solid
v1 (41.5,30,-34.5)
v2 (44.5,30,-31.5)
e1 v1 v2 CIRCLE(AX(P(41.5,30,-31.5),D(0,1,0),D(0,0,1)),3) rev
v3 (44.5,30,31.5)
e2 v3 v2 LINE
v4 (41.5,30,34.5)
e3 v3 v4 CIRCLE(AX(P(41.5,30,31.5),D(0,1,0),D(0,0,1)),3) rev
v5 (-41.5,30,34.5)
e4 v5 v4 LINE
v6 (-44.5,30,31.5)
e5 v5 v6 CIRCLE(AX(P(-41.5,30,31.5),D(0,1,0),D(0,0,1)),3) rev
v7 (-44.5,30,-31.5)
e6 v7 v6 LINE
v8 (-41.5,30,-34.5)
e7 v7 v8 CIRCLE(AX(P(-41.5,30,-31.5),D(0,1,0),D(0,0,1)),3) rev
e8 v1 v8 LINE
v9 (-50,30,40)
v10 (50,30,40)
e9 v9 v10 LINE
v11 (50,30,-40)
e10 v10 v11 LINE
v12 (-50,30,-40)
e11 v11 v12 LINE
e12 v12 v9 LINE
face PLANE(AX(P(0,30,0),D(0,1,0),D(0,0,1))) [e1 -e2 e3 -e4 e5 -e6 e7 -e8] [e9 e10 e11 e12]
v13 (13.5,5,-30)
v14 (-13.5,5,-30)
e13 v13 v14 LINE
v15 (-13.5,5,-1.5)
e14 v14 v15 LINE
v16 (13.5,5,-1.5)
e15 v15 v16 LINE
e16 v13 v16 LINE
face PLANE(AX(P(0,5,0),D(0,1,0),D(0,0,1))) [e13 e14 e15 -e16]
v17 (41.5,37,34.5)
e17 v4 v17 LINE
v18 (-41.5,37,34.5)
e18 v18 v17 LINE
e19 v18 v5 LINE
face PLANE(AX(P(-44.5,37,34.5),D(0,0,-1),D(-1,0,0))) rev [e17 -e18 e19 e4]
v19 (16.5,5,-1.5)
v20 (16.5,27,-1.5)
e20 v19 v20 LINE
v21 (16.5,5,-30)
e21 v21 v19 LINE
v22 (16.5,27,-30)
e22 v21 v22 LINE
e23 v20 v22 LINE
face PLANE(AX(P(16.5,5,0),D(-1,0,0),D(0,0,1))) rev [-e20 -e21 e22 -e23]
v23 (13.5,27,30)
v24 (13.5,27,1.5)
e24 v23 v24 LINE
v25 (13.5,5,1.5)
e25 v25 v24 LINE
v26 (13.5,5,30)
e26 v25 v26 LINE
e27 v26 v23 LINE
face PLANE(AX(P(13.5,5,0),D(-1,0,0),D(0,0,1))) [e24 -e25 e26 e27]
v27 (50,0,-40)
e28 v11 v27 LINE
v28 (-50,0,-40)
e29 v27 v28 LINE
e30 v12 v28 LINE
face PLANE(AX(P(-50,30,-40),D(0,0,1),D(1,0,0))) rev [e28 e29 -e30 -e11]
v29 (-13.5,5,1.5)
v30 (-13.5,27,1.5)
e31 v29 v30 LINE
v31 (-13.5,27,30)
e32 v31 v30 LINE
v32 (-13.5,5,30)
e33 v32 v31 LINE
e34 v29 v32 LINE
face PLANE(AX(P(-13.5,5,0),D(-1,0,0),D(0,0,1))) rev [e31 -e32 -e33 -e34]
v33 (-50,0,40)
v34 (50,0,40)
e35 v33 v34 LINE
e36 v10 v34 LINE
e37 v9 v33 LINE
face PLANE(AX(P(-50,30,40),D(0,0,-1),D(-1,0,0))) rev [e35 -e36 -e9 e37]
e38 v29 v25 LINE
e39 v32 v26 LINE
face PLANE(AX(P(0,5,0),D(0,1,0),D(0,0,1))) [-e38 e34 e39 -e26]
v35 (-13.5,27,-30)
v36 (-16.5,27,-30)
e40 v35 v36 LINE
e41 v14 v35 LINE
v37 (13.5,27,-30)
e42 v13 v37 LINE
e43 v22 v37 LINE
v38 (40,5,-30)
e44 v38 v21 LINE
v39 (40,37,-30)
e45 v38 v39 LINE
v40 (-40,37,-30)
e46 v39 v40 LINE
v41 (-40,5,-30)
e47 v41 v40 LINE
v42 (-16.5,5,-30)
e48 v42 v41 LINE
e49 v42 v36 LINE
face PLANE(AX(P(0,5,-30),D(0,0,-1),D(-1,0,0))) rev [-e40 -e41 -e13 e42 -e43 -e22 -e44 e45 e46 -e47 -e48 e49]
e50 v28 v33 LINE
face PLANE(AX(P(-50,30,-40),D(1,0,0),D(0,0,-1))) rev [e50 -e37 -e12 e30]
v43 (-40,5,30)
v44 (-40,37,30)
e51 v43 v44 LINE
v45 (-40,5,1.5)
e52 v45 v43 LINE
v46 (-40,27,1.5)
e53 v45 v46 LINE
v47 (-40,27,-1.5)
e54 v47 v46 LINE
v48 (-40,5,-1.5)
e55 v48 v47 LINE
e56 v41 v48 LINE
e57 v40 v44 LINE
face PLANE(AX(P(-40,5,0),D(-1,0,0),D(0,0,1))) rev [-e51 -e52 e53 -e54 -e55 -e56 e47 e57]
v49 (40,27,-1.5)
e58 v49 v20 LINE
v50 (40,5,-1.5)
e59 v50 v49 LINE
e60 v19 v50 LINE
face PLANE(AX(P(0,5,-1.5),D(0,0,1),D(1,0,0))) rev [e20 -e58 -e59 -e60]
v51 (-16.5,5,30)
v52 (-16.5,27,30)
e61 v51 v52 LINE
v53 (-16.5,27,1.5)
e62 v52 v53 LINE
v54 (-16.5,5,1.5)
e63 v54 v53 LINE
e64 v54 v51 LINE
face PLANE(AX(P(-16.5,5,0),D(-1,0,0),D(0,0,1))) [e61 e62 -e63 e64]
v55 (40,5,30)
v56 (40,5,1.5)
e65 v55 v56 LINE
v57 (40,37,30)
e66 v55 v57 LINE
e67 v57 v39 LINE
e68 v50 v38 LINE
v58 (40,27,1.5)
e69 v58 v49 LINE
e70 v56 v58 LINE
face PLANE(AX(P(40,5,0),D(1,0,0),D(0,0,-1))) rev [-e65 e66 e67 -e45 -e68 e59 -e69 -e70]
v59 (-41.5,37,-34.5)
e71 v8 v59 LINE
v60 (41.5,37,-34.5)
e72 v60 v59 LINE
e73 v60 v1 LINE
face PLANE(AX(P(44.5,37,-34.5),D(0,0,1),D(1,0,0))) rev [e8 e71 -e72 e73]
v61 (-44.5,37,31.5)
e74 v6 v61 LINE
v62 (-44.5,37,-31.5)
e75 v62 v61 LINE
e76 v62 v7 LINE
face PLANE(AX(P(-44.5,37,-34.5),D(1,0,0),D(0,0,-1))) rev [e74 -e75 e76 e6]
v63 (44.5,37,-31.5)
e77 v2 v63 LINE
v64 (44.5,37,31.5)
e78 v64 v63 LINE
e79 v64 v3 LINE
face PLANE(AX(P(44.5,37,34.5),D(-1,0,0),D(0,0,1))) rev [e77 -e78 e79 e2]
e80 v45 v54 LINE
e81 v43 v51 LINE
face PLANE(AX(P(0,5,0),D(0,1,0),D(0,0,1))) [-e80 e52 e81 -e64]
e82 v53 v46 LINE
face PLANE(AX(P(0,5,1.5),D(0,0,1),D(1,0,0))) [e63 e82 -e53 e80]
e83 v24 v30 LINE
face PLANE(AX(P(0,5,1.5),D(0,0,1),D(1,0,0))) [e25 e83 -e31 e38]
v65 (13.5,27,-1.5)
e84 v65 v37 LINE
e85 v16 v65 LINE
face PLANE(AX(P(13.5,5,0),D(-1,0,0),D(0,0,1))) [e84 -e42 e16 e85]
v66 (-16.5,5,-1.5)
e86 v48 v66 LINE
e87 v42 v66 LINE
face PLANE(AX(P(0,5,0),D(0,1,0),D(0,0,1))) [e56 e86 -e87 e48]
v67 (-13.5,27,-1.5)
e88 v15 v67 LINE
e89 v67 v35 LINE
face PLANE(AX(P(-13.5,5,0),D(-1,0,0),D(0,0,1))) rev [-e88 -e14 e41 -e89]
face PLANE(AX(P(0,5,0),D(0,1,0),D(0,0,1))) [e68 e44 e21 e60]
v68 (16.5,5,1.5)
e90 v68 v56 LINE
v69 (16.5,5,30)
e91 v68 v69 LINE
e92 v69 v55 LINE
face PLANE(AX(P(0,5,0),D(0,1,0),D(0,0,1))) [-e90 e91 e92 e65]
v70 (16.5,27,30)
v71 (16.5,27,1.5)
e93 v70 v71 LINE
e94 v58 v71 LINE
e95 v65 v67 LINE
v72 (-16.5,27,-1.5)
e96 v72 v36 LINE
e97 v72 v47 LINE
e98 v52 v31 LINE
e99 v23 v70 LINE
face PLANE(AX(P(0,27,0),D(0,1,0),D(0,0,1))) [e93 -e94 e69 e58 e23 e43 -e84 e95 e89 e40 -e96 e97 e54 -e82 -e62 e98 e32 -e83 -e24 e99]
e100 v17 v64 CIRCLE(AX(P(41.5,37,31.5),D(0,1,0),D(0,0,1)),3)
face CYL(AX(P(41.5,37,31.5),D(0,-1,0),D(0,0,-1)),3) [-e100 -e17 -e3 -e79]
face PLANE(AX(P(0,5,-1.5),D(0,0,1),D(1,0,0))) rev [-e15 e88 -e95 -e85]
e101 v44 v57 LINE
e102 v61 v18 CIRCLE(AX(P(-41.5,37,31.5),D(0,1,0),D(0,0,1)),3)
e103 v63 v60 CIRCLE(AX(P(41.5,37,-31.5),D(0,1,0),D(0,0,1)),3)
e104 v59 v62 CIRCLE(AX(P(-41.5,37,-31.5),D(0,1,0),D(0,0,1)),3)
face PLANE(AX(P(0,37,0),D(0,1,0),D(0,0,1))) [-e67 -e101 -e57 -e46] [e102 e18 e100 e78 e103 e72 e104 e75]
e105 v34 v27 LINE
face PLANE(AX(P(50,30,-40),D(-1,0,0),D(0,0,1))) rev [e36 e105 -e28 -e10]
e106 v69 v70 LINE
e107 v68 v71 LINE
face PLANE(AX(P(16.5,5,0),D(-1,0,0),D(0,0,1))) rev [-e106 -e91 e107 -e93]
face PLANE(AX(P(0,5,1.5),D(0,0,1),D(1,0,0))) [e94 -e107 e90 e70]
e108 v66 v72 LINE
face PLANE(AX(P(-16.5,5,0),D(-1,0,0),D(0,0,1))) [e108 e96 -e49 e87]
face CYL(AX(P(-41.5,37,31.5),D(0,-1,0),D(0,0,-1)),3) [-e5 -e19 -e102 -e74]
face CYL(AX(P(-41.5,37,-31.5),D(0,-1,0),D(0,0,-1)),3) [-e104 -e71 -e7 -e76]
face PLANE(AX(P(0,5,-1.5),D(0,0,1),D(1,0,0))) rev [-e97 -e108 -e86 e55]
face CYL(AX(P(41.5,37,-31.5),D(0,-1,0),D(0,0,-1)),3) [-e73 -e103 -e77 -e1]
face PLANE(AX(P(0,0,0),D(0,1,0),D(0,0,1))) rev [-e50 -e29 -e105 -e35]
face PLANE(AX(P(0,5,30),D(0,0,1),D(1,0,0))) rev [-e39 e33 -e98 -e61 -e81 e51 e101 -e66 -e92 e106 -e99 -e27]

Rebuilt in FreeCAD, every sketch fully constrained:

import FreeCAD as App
import Part
import Sketcher
from FreeCAD import Vector


def edges_at(feature, points):
    """Names of the edges that pass closest to the given points."""
    edges = feature.Shape.Edges
    near = lambda p: min(range(len(edges)), key=lambda i: edges[i].distToShape(Part.Vertex(*p))[0])
    return sorted({f"Edge{near(p) + 1}" for p in points})


def add_polygon(sketch, points):
    """Adds a closed chain of lines whose ends are joined by coincident constraints."""
    first, n = sketch.GeometryCount, len(points)
    for a, b in zip(points, points[1:] + points[:1]):
        sketch.addGeometry(Part.LineSegment(App.Vector(*a, 0), App.Vector(*b, 0)), False)
    for i in range(n):
        sketch.addConstraint(Sketcher.Constraint("Coincident", first + i, 2, first + (i + 1) % n, 1))

doc = App.newDocument("Part")
body = doc.addObject("PartDesign::Body", "Body")

sketch1 = body.newObject("Sketcher::SketchObject", "Sketch")
sketch1.AttachmentSupport = (doc.getObject("XZ_Plane"), [""])
sketch1.MapMode = "FlatFace"
add_polygon(sketch1, [(-50, -40), (-50, 40), (50, 40), (50, -40)])
sketch1.addConstraint([
    Sketcher.Constraint("Vertical", 0),
    Sketcher.Constraint("Horizontal", 1),
    Sketcher.Constraint("Vertical", 2),
    Sketcher.Constraint("Horizontal", 3),
    Sketcher.Constraint("Symmetric", 0, 2, 2, 2, -1, 1),
    Sketcher.Constraint("DistanceX", 1, 1, 1, 2, 100.0),
    Sketcher.Constraint("DistanceY", 0, 1, 0, 2, 80.0),
])
pad1 = body.newObject("PartDesign::Pad", "Pad")
pad1.Profile = sketch1
pad1.Length = 30
pad1.Reversed = True

sketch2 = body.newObject("Sketcher::SketchObject", "Sketch001")
sketch2.AttachmentSupport = (doc.getObject("XZ_Plane"), [""])
sketch2.MapMode = "FlatFace"
sketch2.AttachmentOffset = App.Placement(Vector(0, 0, -30), App.Rotation())
add_polygon(sketch2, [(-40, -30), (-40, -1.5), (-16.5, -1.5), (-16.5, -30)])
add_polygon(sketch2, [(-13.5, -30), (-13.5, -1.5), (13.5, -1.5), (13.5, -30)])
add_polygon(sketch2, [(16.5, -30), (16.5, -1.5), (40, -1.5), (40, -30)])
add_polygon(sketch2, [(16.5, 1.5), (16.5, 30), (40, 30), (40, 1.5)])
add_polygon(sketch2, [(-13.5, 1.5), (-13.5, 30), (13.5, 30), (13.5, 1.5)])
add_polygon(sketch2, [(-40, 1.5), (-40, 30), (-16.5, 30), (-16.5, 1.5)])
sketch2.addConstraint([
    Sketcher.Constraint("Vertical", 0),
    Sketcher.Constraint("Horizontal", 1),
    Sketcher.Constraint("Vertical", 2),
    Sketcher.Constraint("Horizontal", 3),
    Sketcher.Constraint("Vertical", 4),
    Sketcher.Constraint("Horizontal", 5),
    Sketcher.Constraint("Vertical", 6),
    Sketcher.Constraint("Horizontal", 7),
    Sketcher.Constraint("Vertical", 8),
    Sketcher.Constraint("Horizontal", 9),
    Sketcher.Constraint("Vertical", 10),
    Sketcher.Constraint("Horizontal", 11),
    Sketcher.Constraint("Vertical", 12),
    Sketcher.Constraint("Horizontal", 13),
    Sketcher.Constraint("Vertical", 14),
    Sketcher.Constraint("Horizontal", 15),
    Sketcher.Constraint("Vertical", 16),
    Sketcher.Constraint("Horizontal", 17),
    Sketcher.Constraint("Vertical", 18),
    Sketcher.Constraint("Horizontal", 19),
    Sketcher.Constraint("Vertical", 20),
    Sketcher.Constraint("Horizontal", 21),
    Sketcher.Constraint("Vertical", 22),
    Sketcher.Constraint("Horizontal", 23),
    Sketcher.Constraint("Symmetric", 2, 2, 12, 2, -1, 1),
    Sketcher.Constraint("Symmetric", 0, 2, 14, 2, -1, 1),
    Sketcher.Constraint("Symmetric", 6, 2, 16, 2, -1, 1),
    Sketcher.Constraint("Symmetric", 4, 2, 18, 2, -1, 1),
    Sketcher.Constraint("Symmetric", 10, 2, 20, 2, -1, 1),
    Sketcher.Constraint("Symmetric", 8, 2, 22, 2, -1, 1),
    Sketcher.Constraint("Symmetric", 1, 2, 8, 2, -2),
    Sketcher.Constraint("Symmetric", 3, 2, 10, 2, -2),
    Sketcher.Constraint("Horizontal", 1, 2, 4, 2),
    Sketcher.Constraint("Horizontal", 3, 2, 6, 2),
    Sketcher.Constraint("Vertical", 7, 2, 16, 2),
    Sketcher.Constraint("DistanceX", 5, 1, 5, 2, 27.0),
    Sketcher.Constraint("DistanceX", 1, 1, 1, 2, 23.5),
    Sketcher.Constraint("DistanceY", 0, 1, 0, 2, 28.5),
    Sketcher.Constraint("DistanceX", 0, 2, -1, 1, 40.0),
    Sketcher.Constraint("DistanceY", 2, 2, -1, 1, 30.0),
])
pocket1 = body.newObject("PartDesign::Pocket", "Pocket")
pocket1.Profile = sketch2
pocket1.Length = 25
pocket1.Reversed = True

sketch3 = body.newObject("Sketcher::SketchObject", "Sketch002")
sketch3.AttachmentSupport = (doc.getObject("XZ_Plane"), [""])
sketch3.MapMode = "FlatFace"
sketch3.AttachmentOffset = App.Placement(Vector(0, 0, -30), App.Rotation())
add_polygon(sketch3, [(-40, -30), (-40, 30), (40, 30), (40, -30)])
sketch3.addConstraint([
    Sketcher.Constraint("Vertical", 0),
    Sketcher.Constraint("Horizontal", 1),
    Sketcher.Constraint("Vertical", 2),
    Sketcher.Constraint("Horizontal", 3),
    Sketcher.Constraint("Symmetric", 0, 2, 2, 2, -1, 1),
    Sketcher.Constraint("DistanceX", 1, 1, 1, 2, 80.0),
    Sketcher.Constraint("DistanceY", 0, 1, 0, 2, 60.0),
])
pocket2 = body.newObject("PartDesign::Pocket", "Pocket001")
pocket2.Profile = sketch3
pocket2.Length = 3
pocket2.Reversed = True

sketch4 = body.newObject("Sketcher::SketchObject", "Sketch003")
sketch4.AttachmentSupport = (doc.getObject("XZ_Plane"), [""])
sketch4.MapMode = "FlatFace"
sketch4.AttachmentOffset = App.Placement(Vector(0, 0, -30), App.Rotation())
add_polygon(sketch4, [(-44.5, -34.5), (-44.5, 34.5), (44.5, 34.5), (44.5, -34.5)])
add_polygon(sketch4, [(40, 30), (-40, 30), (-40, -30), (40, -30)])
sketch4.addConstraint([
    Sketcher.Constraint("Vertical", 0),
    Sketcher.Constraint("Horizontal", 1),
    Sketcher.Constraint("Vertical", 2),
    Sketcher.Constraint("Horizontal", 3),
    Sketcher.Constraint("Horizontal", 4),
    Sketcher.Constraint("Vertical", 5),
    Sketcher.Constraint("Horizontal", 6),
    Sketcher.Constraint("Vertical", 7),
    Sketcher.Constraint("Symmetric", 0, 2, 2, 2, -1, 1),
    Sketcher.Constraint("Symmetric", 4, 2, 6, 2, -1, 1),
    Sketcher.Constraint("DistanceX", 1, 1, 1, 2, 89.0),
    Sketcher.Constraint("DistanceX", 4, 2, 4, 1, 80.0),
    Sketcher.Constraint("DistanceY", 0, 1, 0, 2, 69.0),
    Sketcher.Constraint("DistanceY", 5, 2, 5, 1, 60.0),
])
pad2 = body.newObject("PartDesign::Pad", "Pad001")
pad2.Profile = sketch4
pad2.Length = 7
pad2.Reversed = True
doc.recompute()

fillet = body.newObject("PartDesign::Fillet", "Fillet")
fillet.Base = (pad2, edges_at(pad2, [
    (-44.5, 33.5, -34.5),
    (-44.5, 33.5, 34.5),
    (44.5, 33.5, 34.5),
    (44.5, 33.5, -34.5),
]))
fillet.Radius = 3

doc.recompute()
